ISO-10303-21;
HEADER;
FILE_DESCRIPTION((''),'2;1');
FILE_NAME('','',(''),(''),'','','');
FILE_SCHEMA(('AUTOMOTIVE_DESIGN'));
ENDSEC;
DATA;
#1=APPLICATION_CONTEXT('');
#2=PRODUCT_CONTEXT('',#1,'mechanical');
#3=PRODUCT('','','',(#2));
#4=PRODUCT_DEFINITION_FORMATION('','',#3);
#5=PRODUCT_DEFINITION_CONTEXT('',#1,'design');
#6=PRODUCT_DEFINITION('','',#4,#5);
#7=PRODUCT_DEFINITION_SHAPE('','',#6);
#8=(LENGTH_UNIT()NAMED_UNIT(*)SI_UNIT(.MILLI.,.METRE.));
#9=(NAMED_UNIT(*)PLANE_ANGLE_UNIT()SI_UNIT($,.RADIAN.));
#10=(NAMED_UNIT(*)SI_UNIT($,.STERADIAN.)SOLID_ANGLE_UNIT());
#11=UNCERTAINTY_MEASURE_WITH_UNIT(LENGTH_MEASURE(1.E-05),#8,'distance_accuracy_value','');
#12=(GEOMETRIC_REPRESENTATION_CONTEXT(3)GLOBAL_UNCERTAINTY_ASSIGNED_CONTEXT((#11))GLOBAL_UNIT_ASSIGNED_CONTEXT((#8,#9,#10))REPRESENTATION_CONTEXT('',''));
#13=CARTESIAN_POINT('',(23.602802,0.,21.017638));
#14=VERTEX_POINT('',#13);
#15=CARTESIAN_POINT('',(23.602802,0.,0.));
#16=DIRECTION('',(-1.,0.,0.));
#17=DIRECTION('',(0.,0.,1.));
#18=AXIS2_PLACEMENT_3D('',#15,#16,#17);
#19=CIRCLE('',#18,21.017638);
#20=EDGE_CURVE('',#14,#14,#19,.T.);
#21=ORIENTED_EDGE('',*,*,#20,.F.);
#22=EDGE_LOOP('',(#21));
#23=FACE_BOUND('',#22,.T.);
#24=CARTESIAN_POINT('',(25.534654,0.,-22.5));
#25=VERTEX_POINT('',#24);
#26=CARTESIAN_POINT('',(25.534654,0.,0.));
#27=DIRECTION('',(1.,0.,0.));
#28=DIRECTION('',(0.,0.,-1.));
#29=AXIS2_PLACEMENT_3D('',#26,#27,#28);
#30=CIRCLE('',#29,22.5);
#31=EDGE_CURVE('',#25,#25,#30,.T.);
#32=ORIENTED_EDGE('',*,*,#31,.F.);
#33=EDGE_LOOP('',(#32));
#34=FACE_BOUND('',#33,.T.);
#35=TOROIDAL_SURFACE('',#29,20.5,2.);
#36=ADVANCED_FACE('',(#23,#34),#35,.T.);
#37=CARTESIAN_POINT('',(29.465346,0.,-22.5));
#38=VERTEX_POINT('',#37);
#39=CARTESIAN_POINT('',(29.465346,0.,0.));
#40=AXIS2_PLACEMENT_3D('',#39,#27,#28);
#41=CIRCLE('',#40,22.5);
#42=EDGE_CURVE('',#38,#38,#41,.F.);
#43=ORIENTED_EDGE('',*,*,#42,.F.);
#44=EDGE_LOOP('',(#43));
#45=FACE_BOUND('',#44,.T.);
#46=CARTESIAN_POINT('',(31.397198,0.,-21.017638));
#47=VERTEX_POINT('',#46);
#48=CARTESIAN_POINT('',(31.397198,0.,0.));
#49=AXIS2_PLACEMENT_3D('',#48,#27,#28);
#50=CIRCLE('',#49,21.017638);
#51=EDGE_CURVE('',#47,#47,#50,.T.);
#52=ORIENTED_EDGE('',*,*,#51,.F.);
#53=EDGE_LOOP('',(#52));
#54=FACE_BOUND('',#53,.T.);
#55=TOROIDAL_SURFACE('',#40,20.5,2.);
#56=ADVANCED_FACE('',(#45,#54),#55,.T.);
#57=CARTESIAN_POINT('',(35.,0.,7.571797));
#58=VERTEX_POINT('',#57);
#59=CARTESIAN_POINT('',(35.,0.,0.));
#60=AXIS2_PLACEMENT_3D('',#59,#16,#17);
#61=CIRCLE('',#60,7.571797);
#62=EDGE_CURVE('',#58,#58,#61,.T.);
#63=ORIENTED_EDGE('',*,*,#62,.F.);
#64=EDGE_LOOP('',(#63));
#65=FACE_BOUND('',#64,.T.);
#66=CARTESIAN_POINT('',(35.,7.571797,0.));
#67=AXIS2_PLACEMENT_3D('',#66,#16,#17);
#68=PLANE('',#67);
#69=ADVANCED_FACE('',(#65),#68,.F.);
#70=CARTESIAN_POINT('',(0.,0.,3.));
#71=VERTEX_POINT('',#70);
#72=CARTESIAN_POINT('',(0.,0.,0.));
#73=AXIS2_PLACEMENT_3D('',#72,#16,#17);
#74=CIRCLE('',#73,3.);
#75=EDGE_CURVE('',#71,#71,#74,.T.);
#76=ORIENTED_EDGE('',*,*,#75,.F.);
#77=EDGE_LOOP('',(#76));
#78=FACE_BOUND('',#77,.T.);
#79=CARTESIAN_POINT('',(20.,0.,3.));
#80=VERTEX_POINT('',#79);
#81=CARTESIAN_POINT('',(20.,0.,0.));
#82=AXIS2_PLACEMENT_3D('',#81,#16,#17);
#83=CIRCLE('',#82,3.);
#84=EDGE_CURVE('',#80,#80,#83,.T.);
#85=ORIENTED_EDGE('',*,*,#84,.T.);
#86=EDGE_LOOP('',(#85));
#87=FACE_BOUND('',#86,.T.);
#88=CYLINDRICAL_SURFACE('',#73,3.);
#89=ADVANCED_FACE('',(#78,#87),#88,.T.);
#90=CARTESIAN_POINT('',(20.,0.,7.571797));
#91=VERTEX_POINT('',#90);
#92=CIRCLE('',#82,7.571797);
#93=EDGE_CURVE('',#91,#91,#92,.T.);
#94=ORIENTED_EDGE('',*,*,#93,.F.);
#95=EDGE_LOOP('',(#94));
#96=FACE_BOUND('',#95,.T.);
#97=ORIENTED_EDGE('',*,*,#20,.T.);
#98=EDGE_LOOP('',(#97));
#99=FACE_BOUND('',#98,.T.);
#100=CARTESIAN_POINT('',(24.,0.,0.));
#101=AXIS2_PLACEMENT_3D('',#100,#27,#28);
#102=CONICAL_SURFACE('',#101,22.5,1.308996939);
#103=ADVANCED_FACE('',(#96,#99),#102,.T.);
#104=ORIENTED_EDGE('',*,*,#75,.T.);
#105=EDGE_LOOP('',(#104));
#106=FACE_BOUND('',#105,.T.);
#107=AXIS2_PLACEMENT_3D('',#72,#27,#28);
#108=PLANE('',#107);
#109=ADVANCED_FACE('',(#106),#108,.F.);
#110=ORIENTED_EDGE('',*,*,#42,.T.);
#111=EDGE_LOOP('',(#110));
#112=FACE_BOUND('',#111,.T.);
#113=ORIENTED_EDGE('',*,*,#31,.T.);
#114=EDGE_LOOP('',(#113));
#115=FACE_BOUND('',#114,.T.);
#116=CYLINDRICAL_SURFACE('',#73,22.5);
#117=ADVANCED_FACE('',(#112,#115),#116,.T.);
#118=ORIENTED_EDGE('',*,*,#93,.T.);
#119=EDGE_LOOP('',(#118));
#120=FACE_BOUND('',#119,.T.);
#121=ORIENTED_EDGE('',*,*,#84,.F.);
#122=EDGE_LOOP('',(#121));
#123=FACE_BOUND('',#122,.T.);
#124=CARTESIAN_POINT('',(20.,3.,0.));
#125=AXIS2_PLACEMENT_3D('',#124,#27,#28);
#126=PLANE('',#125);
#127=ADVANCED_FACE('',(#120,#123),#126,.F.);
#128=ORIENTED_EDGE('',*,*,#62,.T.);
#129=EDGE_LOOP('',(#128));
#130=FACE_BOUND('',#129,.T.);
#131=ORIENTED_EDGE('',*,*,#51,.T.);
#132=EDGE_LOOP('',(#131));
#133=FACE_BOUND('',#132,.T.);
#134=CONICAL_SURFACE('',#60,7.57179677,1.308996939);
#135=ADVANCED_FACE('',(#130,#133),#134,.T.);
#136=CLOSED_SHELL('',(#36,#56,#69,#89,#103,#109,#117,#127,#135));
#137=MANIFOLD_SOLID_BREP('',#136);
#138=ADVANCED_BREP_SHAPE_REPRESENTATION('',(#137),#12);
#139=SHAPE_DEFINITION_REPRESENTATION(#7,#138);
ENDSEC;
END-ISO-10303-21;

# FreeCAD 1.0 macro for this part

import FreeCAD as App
import Part
import Sketcher
from FreeCAD import Vector
Q = App.Units.Quantity


def edges_at(feature, points):
    """Names of the edges that pass closest to the given points."""
    edges = feature.Shape.Edges
    near = lambda p: min(range(len(edges)), key=lambda i: edges[i].distToShape(Part.Vertex(*p))[0])
    return sorted({f"Edge{near(p) + 1}" for p in points})

doc = App.newDocument("Part")
params = doc.addObject("Spreadsheet::Sheet", "Params")
for row, (alias, value) in enumerate([
    ("sketch1_width", "35 mm"),
    ("sketch1_width2", "7 mm"),
    ("sketch1_width3", "20 mm"),
    ("sketch1_height", "3 mm"),
    ("revolution_angle", "360 deg"),
    ("fillet_radius", "2 mm"),
], start=1):
    params.set(f"A{row}", alias)
    params.set(f"B{row}", "=" + value)
    params.setAlias(f"B{row}", alias)

body = doc.addObject("PartDesign::Body", "Body")

# Sketch on XY plane
sketch1 = body.newObject("Sketcher::SketchObject", "Sketch")
sketch1.AttachmentSupport = (doc.getObject("XY_Plane"), [""])
sketch1.MapMode = "FlatFace"
sketch1.addGeometry(Part.LineSegment(Vector(0, 3, 0), Vector(0, 0, 0)), False)
sketch1.addGeometry(Part.LineSegment(Vector(0, 0, 0), Vector(35, 0, 0)), False)
sketch1.addGeometry(Part.LineSegment(Vector(35, 0, 0), Vector(35, 7.6, 0)), False)
sketch1.addGeometry(Part.LineSegment(Vector(35, 7.6, 0), Vector(31, 22.5, 0)), False)
sketch1.addGeometry(Part.LineSegment(Vector(31, 22.5, 0), Vector(24, 22.5, 0)), False)
sketch1.addGeometry(Part.LineSegment(Vector(24, 22.5, 0), Vector(20, 7.6, 0)), False)
sketch1.addGeometry(Part.LineSegment(Vector(20, 7.6, 0), Vector(20, 3, 0)), False)
sketch1.addGeometry(Part.LineSegment(Vector(20, 3, 0), Vector(0, 3, 0)), False)
sketch1.addConstraint(Sketcher.Constraint("Coincident", 0, 2, 1, 1))
sketch1.addConstraint(Sketcher.Constraint("Coincident", 1, 2, 2, 1))
sketch1.addConstraint(Sketcher.Constraint("Coincident", 2, 2, 3, 1))
sketch1.addConstraint(Sketcher.Constraint("Coincident", 3, 2, 4, 1))
sketch1.addConstraint(Sketcher.Constraint("Coincident", 4, 2, 5, 1))
sketch1.addConstraint(Sketcher.Constraint("Coincident", 5, 2, 6, 1))
sketch1.addConstraint(Sketcher.Constraint("Coincident", 6, 2, 7, 1))
sketch1.addConstraint(Sketcher.Constraint("Coincident", 7, 2, 0, 1))
sketch1.addConstraint(Sketcher.Constraint("Vertical", 0))
sketch1.addConstraint(Sketcher.Constraint("Horizontal", 1))
sketch1.addConstraint(Sketcher.Constraint("Vertical", 2))
sketch1.addConstraint(Sketcher.Constraint("Horizontal", 4))
sketch1.addConstraint(Sketcher.Constraint("Vertical", 6))
sketch1.addConstraint(Sketcher.Constraint("Horizontal", 7))
sketch1.addConstraint(Sketcher.Constraint("Coincident", 0, 2, -1, 1))
sketch1.addConstraint(Sketcher.Constraint("Horizontal", 2, 2, 5, 2))
sketch1.addConstraint(Sketcher.Constraint("Equal", 3, 5))
sketch1.addConstraint(Sketcher.Constraint("DistanceX", 1, 1, 1, 2, 35.0))
sketch1.addConstraint(Sketcher.Constraint("DistanceX", 4, 2, 4, 1, 7.0))
sketch1.addConstraint(Sketcher.Constraint("DistanceX", 7, 2, 7, 1, 20.0))
sketch1.addConstraint(Sketcher.Constraint("DistanceY", 0, 2, 0, 1, 3.0))
sketch1.addConstraint(Sketcher.Constraint("Angle", 3, Q("105 deg")))
sketch1.addConstraint(Sketcher.Constraint("DistanceY", -1, 1, 3, 2, 22.5))
sketch1.setExpression("Constraints[17]", "Params.sketch1_width")
sketch1.setExpression("Constraints[18]", "Params.sketch1_width2")
sketch1.setExpression("Constraints[19]", "Params.sketch1_width3")
sketch1.setExpression("Constraints[20]", "Params.sketch1_height")
revolution = body.newObject("PartDesign::Revolution", "Revolution")
revolution.Profile = sketch1
revolution.ReferenceAxis = (sketch1, ["H_Axis"])
revolution.setExpression("Angle", "Params.revolution_angle")
doc.recompute()

fillet = body.newObject("PartDesign::Fillet", "Fillet")
fillet.Base = (revolution, edges_at(revolution, [(31, 0, -22.5), (24, 0, -22.5)]))
fillet.setExpression("Radius", "Params.fillet_radius")

doc.recompute()
